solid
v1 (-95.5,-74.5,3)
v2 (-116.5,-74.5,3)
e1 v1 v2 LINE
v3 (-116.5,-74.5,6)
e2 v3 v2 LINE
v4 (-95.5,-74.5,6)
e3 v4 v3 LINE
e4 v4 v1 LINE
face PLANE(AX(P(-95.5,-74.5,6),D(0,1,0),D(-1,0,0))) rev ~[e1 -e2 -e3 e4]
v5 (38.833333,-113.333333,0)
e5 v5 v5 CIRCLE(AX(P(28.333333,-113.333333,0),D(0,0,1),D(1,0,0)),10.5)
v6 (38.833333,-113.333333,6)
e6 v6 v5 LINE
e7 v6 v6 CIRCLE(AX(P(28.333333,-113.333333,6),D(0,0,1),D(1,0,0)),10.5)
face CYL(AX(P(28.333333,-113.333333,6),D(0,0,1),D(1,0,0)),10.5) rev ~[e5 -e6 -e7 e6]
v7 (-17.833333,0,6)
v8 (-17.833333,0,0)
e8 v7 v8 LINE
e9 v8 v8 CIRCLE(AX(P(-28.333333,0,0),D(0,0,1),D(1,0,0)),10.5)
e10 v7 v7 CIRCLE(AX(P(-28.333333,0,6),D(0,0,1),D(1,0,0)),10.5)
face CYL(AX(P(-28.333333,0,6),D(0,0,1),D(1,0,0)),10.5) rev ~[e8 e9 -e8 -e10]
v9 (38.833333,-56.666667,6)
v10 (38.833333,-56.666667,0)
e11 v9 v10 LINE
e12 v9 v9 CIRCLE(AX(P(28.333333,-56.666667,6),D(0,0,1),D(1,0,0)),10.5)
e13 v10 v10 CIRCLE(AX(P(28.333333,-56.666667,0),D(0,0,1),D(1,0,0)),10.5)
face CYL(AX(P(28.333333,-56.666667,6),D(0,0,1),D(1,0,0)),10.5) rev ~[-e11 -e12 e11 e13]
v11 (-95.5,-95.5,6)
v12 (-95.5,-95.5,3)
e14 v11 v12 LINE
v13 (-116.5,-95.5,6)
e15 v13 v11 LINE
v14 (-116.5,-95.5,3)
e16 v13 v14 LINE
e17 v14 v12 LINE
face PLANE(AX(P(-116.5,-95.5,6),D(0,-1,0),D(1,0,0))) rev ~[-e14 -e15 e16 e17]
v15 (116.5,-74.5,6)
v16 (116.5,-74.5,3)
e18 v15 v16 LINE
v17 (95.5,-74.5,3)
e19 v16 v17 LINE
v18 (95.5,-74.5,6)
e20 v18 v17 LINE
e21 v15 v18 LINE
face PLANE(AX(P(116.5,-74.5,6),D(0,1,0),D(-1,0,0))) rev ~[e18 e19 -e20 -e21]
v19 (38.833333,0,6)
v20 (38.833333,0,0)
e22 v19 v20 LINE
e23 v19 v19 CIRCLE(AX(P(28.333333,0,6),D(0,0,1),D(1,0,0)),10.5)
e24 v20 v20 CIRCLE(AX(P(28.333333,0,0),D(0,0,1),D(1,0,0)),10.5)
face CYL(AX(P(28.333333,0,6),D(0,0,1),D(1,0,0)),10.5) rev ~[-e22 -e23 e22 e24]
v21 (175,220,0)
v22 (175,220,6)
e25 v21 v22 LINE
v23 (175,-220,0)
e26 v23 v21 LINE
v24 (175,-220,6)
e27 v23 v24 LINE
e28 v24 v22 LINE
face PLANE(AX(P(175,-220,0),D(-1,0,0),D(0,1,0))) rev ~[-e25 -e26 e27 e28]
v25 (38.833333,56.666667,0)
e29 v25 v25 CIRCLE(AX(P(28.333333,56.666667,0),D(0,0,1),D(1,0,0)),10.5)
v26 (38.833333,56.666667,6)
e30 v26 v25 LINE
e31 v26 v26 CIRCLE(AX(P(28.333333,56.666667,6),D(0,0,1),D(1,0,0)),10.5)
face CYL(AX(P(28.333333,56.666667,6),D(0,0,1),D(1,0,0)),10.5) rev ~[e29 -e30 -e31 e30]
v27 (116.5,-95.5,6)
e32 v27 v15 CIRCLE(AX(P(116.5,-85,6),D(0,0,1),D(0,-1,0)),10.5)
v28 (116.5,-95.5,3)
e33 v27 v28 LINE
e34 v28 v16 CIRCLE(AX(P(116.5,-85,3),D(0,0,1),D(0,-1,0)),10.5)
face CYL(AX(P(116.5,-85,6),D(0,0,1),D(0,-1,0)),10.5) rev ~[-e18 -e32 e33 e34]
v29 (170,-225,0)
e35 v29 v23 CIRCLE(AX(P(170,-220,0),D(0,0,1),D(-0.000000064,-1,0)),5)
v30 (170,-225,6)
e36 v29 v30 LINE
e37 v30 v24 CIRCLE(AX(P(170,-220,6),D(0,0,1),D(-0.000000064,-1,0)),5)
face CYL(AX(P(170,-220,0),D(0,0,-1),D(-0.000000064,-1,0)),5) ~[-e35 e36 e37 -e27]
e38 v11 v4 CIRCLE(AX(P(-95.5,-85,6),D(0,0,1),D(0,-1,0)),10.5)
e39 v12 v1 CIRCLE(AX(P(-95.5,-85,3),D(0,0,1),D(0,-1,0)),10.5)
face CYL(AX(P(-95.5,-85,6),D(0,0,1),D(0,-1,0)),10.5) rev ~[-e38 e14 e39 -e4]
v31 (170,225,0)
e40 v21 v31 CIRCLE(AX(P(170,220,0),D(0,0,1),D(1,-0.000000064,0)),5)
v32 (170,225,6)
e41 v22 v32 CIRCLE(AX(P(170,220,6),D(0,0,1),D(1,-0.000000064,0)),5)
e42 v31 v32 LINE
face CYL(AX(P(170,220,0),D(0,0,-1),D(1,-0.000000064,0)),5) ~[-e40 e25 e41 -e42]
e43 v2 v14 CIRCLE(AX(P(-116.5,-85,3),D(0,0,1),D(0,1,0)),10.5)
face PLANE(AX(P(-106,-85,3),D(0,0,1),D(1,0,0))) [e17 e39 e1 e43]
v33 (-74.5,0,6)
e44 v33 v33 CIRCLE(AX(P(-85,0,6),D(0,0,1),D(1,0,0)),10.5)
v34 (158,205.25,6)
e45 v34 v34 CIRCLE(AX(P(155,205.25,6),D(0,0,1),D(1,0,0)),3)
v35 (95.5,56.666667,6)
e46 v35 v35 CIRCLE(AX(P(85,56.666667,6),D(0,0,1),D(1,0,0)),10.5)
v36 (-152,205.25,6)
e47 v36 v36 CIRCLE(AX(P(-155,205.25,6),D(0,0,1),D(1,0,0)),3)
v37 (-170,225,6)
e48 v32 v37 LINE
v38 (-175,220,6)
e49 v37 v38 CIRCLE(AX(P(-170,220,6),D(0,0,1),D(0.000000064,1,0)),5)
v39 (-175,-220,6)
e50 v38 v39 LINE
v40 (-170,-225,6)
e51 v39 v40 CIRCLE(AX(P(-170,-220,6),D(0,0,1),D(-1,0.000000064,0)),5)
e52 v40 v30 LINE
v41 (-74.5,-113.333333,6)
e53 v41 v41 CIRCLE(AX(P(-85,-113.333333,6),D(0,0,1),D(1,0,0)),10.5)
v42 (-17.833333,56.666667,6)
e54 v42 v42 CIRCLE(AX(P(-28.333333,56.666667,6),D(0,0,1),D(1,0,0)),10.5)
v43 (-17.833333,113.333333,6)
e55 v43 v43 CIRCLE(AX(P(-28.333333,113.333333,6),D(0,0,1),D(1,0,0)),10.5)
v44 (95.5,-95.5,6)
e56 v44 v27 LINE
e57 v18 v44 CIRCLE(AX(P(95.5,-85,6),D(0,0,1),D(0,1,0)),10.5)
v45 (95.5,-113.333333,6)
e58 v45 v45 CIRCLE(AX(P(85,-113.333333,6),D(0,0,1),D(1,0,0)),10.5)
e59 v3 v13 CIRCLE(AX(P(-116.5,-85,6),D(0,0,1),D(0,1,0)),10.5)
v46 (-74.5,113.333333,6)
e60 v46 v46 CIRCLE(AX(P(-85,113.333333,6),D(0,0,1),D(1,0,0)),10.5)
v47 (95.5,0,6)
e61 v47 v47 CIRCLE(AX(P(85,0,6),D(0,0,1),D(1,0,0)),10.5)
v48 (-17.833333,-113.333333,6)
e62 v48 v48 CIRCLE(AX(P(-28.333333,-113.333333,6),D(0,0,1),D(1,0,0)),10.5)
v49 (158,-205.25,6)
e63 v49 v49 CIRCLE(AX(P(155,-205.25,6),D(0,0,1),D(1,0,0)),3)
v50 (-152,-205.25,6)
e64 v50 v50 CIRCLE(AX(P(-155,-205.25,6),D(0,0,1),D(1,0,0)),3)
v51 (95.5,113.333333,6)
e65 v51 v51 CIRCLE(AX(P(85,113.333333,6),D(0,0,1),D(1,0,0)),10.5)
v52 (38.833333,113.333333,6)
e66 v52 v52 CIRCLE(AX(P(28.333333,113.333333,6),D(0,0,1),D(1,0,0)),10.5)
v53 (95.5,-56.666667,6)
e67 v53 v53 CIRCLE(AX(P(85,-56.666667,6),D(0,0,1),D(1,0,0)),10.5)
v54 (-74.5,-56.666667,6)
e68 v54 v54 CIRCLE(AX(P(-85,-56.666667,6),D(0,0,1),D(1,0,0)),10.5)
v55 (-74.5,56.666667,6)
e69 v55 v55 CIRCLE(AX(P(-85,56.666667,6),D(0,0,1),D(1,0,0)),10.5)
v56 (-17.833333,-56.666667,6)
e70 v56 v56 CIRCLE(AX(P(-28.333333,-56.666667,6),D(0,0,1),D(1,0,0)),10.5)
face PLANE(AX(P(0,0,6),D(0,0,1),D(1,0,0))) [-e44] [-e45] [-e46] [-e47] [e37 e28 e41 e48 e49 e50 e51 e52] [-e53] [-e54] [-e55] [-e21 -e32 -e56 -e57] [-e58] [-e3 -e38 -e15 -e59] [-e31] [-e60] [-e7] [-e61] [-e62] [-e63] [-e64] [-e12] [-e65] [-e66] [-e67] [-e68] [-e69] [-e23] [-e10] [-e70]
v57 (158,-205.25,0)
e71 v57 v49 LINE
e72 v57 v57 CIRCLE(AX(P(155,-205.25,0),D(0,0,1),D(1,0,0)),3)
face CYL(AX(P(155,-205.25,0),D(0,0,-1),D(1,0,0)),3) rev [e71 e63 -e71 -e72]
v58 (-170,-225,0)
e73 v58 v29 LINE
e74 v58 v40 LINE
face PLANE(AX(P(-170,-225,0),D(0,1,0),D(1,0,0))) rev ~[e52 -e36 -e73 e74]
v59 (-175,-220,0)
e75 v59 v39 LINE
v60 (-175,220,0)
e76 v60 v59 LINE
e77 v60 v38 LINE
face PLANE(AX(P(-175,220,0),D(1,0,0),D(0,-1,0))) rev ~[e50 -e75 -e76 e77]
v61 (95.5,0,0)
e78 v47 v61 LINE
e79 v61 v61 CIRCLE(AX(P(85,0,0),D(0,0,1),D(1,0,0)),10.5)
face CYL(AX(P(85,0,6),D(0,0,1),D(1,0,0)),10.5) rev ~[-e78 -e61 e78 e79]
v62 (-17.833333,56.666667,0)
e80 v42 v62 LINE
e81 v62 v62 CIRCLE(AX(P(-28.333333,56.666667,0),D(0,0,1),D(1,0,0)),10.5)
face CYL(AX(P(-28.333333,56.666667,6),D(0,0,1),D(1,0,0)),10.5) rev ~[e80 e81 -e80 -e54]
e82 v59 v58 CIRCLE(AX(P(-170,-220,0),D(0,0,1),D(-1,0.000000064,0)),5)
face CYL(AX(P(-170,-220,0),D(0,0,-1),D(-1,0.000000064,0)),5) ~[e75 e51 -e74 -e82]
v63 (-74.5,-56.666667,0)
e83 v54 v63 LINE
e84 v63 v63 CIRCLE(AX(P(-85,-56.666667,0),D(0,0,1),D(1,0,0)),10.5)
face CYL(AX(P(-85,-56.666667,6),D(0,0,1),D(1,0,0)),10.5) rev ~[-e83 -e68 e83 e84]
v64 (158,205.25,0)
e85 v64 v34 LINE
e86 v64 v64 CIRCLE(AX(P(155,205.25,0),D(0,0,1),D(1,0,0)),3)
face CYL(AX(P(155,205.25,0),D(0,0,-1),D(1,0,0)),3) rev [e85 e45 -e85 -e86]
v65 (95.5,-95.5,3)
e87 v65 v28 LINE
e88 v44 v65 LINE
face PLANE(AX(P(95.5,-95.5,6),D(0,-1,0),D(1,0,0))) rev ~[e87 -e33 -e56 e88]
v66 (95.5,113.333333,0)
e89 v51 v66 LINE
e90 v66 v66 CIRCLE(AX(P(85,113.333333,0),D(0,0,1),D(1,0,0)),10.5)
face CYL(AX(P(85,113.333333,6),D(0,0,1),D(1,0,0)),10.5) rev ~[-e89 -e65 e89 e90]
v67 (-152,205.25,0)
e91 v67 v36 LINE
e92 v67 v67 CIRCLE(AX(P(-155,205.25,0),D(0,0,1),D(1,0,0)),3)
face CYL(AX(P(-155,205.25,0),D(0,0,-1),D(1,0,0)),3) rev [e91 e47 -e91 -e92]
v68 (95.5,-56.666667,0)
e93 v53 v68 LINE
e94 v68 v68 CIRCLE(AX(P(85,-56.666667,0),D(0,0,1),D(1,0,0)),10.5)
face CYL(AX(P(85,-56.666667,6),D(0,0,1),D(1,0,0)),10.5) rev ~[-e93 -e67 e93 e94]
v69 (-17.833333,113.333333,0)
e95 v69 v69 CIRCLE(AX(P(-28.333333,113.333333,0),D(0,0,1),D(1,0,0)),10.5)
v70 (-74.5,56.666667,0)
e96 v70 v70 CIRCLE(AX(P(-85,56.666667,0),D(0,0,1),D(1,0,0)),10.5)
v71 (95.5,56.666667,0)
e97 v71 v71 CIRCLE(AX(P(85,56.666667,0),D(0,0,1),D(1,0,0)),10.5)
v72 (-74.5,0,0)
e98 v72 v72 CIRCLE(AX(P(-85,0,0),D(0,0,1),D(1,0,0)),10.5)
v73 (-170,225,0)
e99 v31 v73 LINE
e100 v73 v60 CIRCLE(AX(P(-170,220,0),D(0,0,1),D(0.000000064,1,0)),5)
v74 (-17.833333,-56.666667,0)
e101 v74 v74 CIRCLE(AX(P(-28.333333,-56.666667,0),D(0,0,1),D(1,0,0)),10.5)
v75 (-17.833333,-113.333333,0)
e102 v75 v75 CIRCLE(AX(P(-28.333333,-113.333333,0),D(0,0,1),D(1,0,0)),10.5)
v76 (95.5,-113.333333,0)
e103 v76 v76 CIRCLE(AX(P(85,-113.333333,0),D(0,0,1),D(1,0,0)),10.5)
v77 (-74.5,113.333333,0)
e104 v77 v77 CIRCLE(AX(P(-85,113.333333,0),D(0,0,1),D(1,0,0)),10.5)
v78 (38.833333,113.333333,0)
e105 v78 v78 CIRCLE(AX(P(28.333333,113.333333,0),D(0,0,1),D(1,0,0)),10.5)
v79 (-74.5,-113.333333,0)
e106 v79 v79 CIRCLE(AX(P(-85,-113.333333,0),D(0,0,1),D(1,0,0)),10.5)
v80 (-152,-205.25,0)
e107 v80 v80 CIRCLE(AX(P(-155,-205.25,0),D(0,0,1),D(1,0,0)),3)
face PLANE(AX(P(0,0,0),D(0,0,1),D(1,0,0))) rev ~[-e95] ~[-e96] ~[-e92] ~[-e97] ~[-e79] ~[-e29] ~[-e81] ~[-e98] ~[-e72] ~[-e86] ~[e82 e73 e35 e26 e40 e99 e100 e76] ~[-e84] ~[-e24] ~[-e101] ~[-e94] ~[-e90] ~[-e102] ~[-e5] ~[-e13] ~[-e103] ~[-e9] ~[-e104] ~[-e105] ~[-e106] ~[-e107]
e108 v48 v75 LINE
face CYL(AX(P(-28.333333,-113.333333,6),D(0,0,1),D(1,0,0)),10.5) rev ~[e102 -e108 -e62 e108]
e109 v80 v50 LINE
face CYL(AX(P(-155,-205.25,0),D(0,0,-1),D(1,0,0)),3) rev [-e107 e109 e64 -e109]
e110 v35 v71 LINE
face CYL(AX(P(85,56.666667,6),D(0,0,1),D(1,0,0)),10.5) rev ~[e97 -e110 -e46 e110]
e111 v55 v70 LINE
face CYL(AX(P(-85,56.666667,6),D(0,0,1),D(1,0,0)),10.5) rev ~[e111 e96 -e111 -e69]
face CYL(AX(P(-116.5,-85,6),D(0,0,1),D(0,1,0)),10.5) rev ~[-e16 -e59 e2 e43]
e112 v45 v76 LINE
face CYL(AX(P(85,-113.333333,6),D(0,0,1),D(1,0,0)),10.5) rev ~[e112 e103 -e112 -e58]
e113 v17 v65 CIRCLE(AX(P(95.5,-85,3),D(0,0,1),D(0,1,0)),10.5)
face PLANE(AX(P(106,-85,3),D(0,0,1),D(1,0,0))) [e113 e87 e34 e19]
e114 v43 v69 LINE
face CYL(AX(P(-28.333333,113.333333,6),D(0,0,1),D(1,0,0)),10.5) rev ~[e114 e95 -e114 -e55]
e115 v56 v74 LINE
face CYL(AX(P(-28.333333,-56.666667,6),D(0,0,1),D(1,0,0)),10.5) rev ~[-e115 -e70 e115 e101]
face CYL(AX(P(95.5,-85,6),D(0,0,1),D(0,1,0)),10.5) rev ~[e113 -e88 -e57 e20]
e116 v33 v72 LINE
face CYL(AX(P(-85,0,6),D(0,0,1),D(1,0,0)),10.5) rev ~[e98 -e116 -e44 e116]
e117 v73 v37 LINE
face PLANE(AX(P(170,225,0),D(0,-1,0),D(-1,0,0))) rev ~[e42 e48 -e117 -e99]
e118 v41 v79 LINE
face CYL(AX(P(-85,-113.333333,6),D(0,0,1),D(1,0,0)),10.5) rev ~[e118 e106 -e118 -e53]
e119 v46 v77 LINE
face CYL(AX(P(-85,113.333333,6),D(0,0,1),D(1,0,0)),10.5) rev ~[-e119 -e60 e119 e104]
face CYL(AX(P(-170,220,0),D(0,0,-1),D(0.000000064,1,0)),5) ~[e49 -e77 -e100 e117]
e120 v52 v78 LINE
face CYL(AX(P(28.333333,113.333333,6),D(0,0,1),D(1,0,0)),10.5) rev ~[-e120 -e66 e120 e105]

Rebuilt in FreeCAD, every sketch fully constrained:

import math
import FreeCAD as App
import Part
import Sketcher
from FreeCAD import Vector

doc = App.newDocument("Part")
params = doc.addObject("Spreadsheet::Sheet", "Params")
for row, (alias, value) in enumerate([
    ("sketch1_diameter", "6 mm"),
    ("sketch1_radius", "5 mm"),
    ("sketch1_width", "340 mm"),
    ("sketch1_height", "440 mm"),
    ("pad1_length", "6 mm"),
    ("sketch2_diameter", "21 mm"),
    ("pocket1_length", "25 mm"),
    ("sketch3_radius", "10.5 mm"),
    ("sketch3_width", "21 mm"),
    ("pocket2_length", "3 mm"),
], start=1):
    params.set(f"A{row}", alias)
    params.set(f"B{row}", "=" + value)
    params.setAlias(f"B{row}", alias)

body = doc.addObject("PartDesign::Body", "Body")

sketch1 = body.newObject("Sketcher::SketchObject", "Sketch")
sketch1.AttachmentSupport = (doc.getObject("XY_Plane"), [""])
sketch1.MapMode = "FlatFace"
sketch1.addGeometry([
    Part.LineSegment(Vector(170, 225, 0), Vector(-170, 225, 0)),
    Part.ArcOfCircle(Part.Circle(Vector(-170, 220, 0), Vector(0, 0, 1), 5), math.radians(90), math.radians(180)),
    Part.LineSegment(Vector(-175, 220, 0), Vector(-175, -220, 0)),
    Part.ArcOfCircle(Part.Circle(Vector(-170, -220, 0), Vector(0, 0, 1), 5), math.radians(180), math.radians(270)),
    Part.LineSegment(Vector(-170, -225, 0), Vector(170, -225, 0)),
    Part.ArcOfCircle(Part.Circle(Vector(170, -220, 0), Vector(0, 0, 1), 5), math.radians(-90), math.radians(0)),
    Part.LineSegment(Vector(175, -220, 0), Vector(175, 220, 0)),
    Part.ArcOfCircle(Part.Circle(Vector(170, 220, 0), Vector(0, 0, 1), 5), math.radians(0), math.radians(90)),
    Part.Circle(Vector(-155, -205.2, 0), Vector(0, 0, 1), 3),
    Part.Circle(Vector(155, -205.2, 0), Vector(0, 0, 1), 3),
    Part.Circle(Vector(-155, 205.2, 0), Vector(0, 0, 1), 3),
    Part.Circle(Vector(155, 205.2, 0), Vector(0, 0, 1), 3),
], False)
sketch1.addConstraint([
    Sketcher.Constraint("Tangent", 0, 2, 1, 1),
    Sketcher.Constraint("Tangent", 1, 2, 2, 1),
    Sketcher.Constraint("Tangent", 2, 2, 3, 1),
    Sketcher.Constraint("Tangent", 3, 2, 4, 1),
    Sketcher.Constraint("Tangent", 4, 2, 5, 1),
    Sketcher.Constraint("Tangent", 5, 2, 6, 1),
    Sketcher.Constraint("Tangent", 6, 2, 7, 1),
    Sketcher.Constraint("Tangent", 7, 2, 0, 1),
    Sketcher.Constraint("Horizontal", 0),
    Sketcher.Constraint("Vertical", 2),
    Sketcher.Constraint("Horizontal", 4),
    Sketcher.Constraint("Vertical", 6),
    Sketcher.Constraint("Equal", 1, 3),
    Sketcher.Constraint("Equal", 3, 5),
    Sketcher.Constraint("Equal", 5, 7),
    Sketcher.Constraint("Equal", 8, 9),
    Sketcher.Constraint("Equal", 9, 10),
    Sketcher.Constraint("Equal", 10, 11),
    Sketcher.Constraint("Symmetric", 1, 3, 5, 3, -1, 1),
    Sketcher.Constraint("Symmetric", 9, 3, 10, 3, -1, 1),
    Sketcher.Constraint("Symmetric", 8, 3, 11, 3, -1, 1),
    Sketcher.Constraint("Symmetric", 8, 3, 9, 3, -2),
    Sketcher.Constraint("Diameter", 8, 6.0),
    Sketcher.Constraint("Radius", 1, 5.0),
    Sketcher.Constraint("DistanceX", 0, 2, 0, 1, 340.0),
    Sketcher.Constraint("DistanceY", 2, 2, 2, 1, 440.0),
    Sketcher.Constraint("DistanceX", 8, 3, -1, 1, 155.0),
    Sketcher.Constraint("DistanceY", 8, 3, 10, 3, 410.5),
])
sketch1.setExpression("Constraints[22]", "Params.sketch1_diameter")
sketch1.setExpression("Constraints[23]", "Params.sketch1_radius")
sketch1.setExpression("Constraints[24]", "Params.sketch1_width")
sketch1.setExpression("Constraints[25]", "Params.sketch1_height")
pad1 = body.newObject("PartDesign::Pad", "Pad")
pad1.Profile = sketch1
pad1.setExpression("Length", "Params.pad1_length")

sketch2 = body.newObject("Sketcher::SketchObject", "Sketch001")
sketch2.AttachmentSupport = (doc.getObject("XY_Plane"), [""])
sketch2.MapMode = "FlatFace"
sketch2.AttachmentOffset = App.Placement(Vector(0, 0, 6), App.Rotation())
sketch2.addGeometry([
    Part.Circle(Vector(-85, 113, 0), Vector(0, 0, 1), 10),
    Part.Circle(Vector(-85, 57, 0), Vector(0, 0, 1), 10),
    Part.Circle(Vector(-85, 0, 0), Vector(0, 0, 1), 10),
    Part.Circle(Vector(-85, -57, 0), Vector(0, 0, 1), 10),
    Part.Circle(Vector(-85, -113, 0), Vector(0, 0, 1), 10),
    Part.Circle(Vector(-28, -113, 0), Vector(0, 0, 1), 10),
    Part.Circle(Vector(-28, -57, 0), Vector(0, 0, 1), 10),
    Part.Circle(Vector(-28, 0, 0), Vector(0, 0, 1), 10),
    Part.Circle(Vector(-28, 57, 0), Vector(0, 0, 1), 10),
    Part.Circle(Vector(-28, 113, 0), Vector(0, 0, 1), 10),
    Part.Circle(Vector(28, 113, 0), Vector(0, 0, 1), 10),
    Part.Circle(Vector(28, 57, 0), Vector(0, 0, 1), 10),
    Part.Circle(Vector(28, 0, 0), Vector(0, 0, 1), 10),
    Part.Circle(Vector(28, -57, 0), Vector(0, 0, 1), 10),
    Part.Circle(Vector(28, -113, 0), Vector(0, 0, 1), 10),
    Part.Circle(Vector(85, -113, 0), Vector(0, 0, 1), 10),
    Part.Circle(Vector(85, -57, 0), Vector(0, 0, 1), 10),
    Part.Circle(Vector(85, 0, 0), Vector(0, 0, 1), 10),
    Part.Circle(Vector(85, 57, 0), Vector(0, 0, 1), 10),
    Part.Circle(Vector(85, 113, 0), Vector(0, 0, 1), 10),
], False)
sketch2.addConstraint([
    Sketcher.Constraint("Equal", 0, 1),
    Sketcher.Constraint("Equal", 1, 2),
    Sketcher.Constraint("Equal", 2, 3),
    Sketcher.Constraint("Equal", 3, 4),
    Sketcher.Constraint("Equal", 4, 5),
    Sketcher.Constraint("Equal", 5, 6),
    Sketcher.Constraint("Equal", 6, 7),
    Sketcher.Constraint("Equal", 7, 8),
    Sketcher.Constraint("Equal", 8, 9),
    Sketcher.Constraint("Equal", 9, 10),
    Sketcher.Constraint("Equal", 10, 11),
    Sketcher.Constraint("Equal", 11, 12),
    Sketcher.Constraint("Equal", 12, 13),
    Sketcher.Constraint("Equal", 13, 14),
    Sketcher.Constraint("Equal", 14, 15),
    Sketcher.Constraint("Equal", 15, 16),
    Sketcher.Constraint("Equal", 16, 17),
    Sketcher.Constraint("Equal", 17, 18),
    Sketcher.Constraint("Equal", 18, 19),
    Sketcher.Constraint("Symmetric", 5, 3, 10, 3, -1, 1),
    Sketcher.Constraint("Symmetric", 6, 3, 11, 3, -1, 1),
    Sketcher.Constraint("Symmetric", 7, 3, 12, 3, -1, 1),
    Sketcher.Constraint("Symmetric", 8, 3, 13, 3, -1, 1),
    Sketcher.Constraint("Symmetric", 9, 3, 14, 3, -1, 1),
    Sketcher.Constraint("Symmetric", 0, 3, 15, 3, -1, 1),
    Sketcher.Constraint("Symmetric", 1, 3, 16, 3, -1, 1),
    Sketcher.Constraint("Symmetric", 2, 3, 17, 3, -1, 1),
    Sketcher.Constraint("Symmetric", 3, 3, 18, 3, -1, 1),
    Sketcher.Constraint("Symmetric", 4, 3, 19, 3, -1, 1),
    Sketcher.Constraint("Symmetric", 9, 3, 10, 3, -2),
    Sketcher.Constraint("Symmetric", 8, 3, 11, 3, -2),
    Sketcher.Constraint("Symmetric", 4, 3, 15, 3, -2),
    Sketcher.Constraint("Symmetric", 3, 3, 16, 3, -2),
    Sketcher.Constraint("PointOnObject", 2, 3, -1),
    Sketcher.Constraint("PointOnObject", 7, 3, -1),
    Sketcher.Constraint("Horizontal", 4, 3, 5, 3),
    Sketcher.Constraint("Horizontal", 3, 3, 6, 3),
    Sketcher.Constraint("Vertical", 0, 3, 1, 3),
    Sketcher.Constraint("Vertical", 1, 3, 2, 3),
    Sketcher.Constraint("Vertical", 5, 3, 6, 3),
    Sketcher.Constraint("Vertical", 6, 3, 7, 3),
    Sketcher.Constraint("Diameter", 0, 21.0),
    Sketcher.Constraint("DistanceX", 0, 3, -1, 1, 85.0),
    Sketcher.Constraint("DistanceY", 3, 3, 0, 3, 170.0),
    Sketcher.Constraint("DistanceY", -1, 1, 0, 3, 113.333333),
    Sketcher.Constraint("DistanceX", 5, 3, -1, 1, 28.333333),
])
sketch2.setExpression("Constraints[41]", "Params.sketch2_diameter")
pocket1 = body.newObject("PartDesign::Pocket", "Pocket")
pocket1.Profile = sketch2
pocket1.setExpression("Length", "Params.pocket1_length")

sketch3 = body.newObject("Sketcher::SketchObject", "Sketch002")
sketch3.AttachmentSupport = (doc.getObject("XY_Plane"), [""])
sketch3.MapMode = "FlatFace"
sketch3.AttachmentOffset = App.Placement(Vector(0, 0, 6), App.Rotation())
sketch3.addGeometry([
    Part.LineSegment(Vector(-96, -74, 0), Vector(-116, -74, 0)),
    Part.ArcOfCircle(Part.Circle(Vector(-116, -85, 0), Vector(0, 0, 1), 10), math.radians(90), math.radians(270)),
    Part.LineSegment(Vector(-116, -96, 0), Vector(-96, -96, 0)),
    Part.ArcOfCircle(Part.Circle(Vector(-96, -85, 0), Vector(0, 0, 1), 10), math.radians(-90), math.radians(90)),
    Part.ArcOfCircle(Part.Circle(Vector(116, -85, 0), Vector(0, 0, 1), 10), math.radians(-90), math.radians(90)),
    Part.LineSegment(Vector(116, -74, 0), Vector(96, -74, 0)),
    Part.ArcOfCircle(Part.Circle(Vector(96, -85, 0), Vector(0, 0, 1), 10), math.radians(90), math.radians(270)),
    Part.LineSegment(Vector(96, -96, 0), Vector(116, -96, 0)),
], False)
sketch3.addConstraint([
    Sketcher.Constraint("Tangent", 0, 2, 1, 1),
    Sketcher.Constraint("Tangent", 1, 2, 2, 1),
    Sketcher.Constraint("Tangent", 2, 2, 3, 1),
    Sketcher.Constraint("Tangent", 3, 2, 0, 1),
    Sketcher.Constraint("Tangent", 4, 2, 5, 1),
    Sketcher.Constraint("Tangent", 5, 2, 6, 1),
    Sketcher.Constraint("Tangent", 6, 2, 7, 1),
    Sketcher.Constraint("Tangent", 7, 2, 4, 1),
    Sketcher.Constraint("Horizontal", 0),
    Sketcher.Constraint("Horizontal", 2),
    Sketcher.Constraint("Horizontal", 5),
    Sketcher.Constraint("Horizontal", 7),
    Sketcher.Constraint("Equal", 3, 4),
    Sketcher.Constraint("Symmetric", 1, 3, 4, 3, -2),
    Sketcher.Constraint("Equal", 2, 5),
    Sketcher.Constraint("Radius", 1, 10.5),
    Sketcher.Constraint("DistanceX", 0, 2, 0, 1, 21.0),
    Sketcher.Constraint("DistanceY", 1, 3, -1, 1, 85.0),
    Sketcher.Constraint("DistanceX", 3, 3, 4, 3, 212.0),
])
sketch3.setExpression("Constraints[15]", "Params.sketch3_radius")
sketch3.setExpression("Constraints[16]", "Params.sketch3_width")
pocket2 = body.newObject("PartDesign::Pocket", "Pocket001")
pocket2.Profile = sketch3
pocket2.setExpression("Length", "Params.pocket2_length")

doc.recompute()
